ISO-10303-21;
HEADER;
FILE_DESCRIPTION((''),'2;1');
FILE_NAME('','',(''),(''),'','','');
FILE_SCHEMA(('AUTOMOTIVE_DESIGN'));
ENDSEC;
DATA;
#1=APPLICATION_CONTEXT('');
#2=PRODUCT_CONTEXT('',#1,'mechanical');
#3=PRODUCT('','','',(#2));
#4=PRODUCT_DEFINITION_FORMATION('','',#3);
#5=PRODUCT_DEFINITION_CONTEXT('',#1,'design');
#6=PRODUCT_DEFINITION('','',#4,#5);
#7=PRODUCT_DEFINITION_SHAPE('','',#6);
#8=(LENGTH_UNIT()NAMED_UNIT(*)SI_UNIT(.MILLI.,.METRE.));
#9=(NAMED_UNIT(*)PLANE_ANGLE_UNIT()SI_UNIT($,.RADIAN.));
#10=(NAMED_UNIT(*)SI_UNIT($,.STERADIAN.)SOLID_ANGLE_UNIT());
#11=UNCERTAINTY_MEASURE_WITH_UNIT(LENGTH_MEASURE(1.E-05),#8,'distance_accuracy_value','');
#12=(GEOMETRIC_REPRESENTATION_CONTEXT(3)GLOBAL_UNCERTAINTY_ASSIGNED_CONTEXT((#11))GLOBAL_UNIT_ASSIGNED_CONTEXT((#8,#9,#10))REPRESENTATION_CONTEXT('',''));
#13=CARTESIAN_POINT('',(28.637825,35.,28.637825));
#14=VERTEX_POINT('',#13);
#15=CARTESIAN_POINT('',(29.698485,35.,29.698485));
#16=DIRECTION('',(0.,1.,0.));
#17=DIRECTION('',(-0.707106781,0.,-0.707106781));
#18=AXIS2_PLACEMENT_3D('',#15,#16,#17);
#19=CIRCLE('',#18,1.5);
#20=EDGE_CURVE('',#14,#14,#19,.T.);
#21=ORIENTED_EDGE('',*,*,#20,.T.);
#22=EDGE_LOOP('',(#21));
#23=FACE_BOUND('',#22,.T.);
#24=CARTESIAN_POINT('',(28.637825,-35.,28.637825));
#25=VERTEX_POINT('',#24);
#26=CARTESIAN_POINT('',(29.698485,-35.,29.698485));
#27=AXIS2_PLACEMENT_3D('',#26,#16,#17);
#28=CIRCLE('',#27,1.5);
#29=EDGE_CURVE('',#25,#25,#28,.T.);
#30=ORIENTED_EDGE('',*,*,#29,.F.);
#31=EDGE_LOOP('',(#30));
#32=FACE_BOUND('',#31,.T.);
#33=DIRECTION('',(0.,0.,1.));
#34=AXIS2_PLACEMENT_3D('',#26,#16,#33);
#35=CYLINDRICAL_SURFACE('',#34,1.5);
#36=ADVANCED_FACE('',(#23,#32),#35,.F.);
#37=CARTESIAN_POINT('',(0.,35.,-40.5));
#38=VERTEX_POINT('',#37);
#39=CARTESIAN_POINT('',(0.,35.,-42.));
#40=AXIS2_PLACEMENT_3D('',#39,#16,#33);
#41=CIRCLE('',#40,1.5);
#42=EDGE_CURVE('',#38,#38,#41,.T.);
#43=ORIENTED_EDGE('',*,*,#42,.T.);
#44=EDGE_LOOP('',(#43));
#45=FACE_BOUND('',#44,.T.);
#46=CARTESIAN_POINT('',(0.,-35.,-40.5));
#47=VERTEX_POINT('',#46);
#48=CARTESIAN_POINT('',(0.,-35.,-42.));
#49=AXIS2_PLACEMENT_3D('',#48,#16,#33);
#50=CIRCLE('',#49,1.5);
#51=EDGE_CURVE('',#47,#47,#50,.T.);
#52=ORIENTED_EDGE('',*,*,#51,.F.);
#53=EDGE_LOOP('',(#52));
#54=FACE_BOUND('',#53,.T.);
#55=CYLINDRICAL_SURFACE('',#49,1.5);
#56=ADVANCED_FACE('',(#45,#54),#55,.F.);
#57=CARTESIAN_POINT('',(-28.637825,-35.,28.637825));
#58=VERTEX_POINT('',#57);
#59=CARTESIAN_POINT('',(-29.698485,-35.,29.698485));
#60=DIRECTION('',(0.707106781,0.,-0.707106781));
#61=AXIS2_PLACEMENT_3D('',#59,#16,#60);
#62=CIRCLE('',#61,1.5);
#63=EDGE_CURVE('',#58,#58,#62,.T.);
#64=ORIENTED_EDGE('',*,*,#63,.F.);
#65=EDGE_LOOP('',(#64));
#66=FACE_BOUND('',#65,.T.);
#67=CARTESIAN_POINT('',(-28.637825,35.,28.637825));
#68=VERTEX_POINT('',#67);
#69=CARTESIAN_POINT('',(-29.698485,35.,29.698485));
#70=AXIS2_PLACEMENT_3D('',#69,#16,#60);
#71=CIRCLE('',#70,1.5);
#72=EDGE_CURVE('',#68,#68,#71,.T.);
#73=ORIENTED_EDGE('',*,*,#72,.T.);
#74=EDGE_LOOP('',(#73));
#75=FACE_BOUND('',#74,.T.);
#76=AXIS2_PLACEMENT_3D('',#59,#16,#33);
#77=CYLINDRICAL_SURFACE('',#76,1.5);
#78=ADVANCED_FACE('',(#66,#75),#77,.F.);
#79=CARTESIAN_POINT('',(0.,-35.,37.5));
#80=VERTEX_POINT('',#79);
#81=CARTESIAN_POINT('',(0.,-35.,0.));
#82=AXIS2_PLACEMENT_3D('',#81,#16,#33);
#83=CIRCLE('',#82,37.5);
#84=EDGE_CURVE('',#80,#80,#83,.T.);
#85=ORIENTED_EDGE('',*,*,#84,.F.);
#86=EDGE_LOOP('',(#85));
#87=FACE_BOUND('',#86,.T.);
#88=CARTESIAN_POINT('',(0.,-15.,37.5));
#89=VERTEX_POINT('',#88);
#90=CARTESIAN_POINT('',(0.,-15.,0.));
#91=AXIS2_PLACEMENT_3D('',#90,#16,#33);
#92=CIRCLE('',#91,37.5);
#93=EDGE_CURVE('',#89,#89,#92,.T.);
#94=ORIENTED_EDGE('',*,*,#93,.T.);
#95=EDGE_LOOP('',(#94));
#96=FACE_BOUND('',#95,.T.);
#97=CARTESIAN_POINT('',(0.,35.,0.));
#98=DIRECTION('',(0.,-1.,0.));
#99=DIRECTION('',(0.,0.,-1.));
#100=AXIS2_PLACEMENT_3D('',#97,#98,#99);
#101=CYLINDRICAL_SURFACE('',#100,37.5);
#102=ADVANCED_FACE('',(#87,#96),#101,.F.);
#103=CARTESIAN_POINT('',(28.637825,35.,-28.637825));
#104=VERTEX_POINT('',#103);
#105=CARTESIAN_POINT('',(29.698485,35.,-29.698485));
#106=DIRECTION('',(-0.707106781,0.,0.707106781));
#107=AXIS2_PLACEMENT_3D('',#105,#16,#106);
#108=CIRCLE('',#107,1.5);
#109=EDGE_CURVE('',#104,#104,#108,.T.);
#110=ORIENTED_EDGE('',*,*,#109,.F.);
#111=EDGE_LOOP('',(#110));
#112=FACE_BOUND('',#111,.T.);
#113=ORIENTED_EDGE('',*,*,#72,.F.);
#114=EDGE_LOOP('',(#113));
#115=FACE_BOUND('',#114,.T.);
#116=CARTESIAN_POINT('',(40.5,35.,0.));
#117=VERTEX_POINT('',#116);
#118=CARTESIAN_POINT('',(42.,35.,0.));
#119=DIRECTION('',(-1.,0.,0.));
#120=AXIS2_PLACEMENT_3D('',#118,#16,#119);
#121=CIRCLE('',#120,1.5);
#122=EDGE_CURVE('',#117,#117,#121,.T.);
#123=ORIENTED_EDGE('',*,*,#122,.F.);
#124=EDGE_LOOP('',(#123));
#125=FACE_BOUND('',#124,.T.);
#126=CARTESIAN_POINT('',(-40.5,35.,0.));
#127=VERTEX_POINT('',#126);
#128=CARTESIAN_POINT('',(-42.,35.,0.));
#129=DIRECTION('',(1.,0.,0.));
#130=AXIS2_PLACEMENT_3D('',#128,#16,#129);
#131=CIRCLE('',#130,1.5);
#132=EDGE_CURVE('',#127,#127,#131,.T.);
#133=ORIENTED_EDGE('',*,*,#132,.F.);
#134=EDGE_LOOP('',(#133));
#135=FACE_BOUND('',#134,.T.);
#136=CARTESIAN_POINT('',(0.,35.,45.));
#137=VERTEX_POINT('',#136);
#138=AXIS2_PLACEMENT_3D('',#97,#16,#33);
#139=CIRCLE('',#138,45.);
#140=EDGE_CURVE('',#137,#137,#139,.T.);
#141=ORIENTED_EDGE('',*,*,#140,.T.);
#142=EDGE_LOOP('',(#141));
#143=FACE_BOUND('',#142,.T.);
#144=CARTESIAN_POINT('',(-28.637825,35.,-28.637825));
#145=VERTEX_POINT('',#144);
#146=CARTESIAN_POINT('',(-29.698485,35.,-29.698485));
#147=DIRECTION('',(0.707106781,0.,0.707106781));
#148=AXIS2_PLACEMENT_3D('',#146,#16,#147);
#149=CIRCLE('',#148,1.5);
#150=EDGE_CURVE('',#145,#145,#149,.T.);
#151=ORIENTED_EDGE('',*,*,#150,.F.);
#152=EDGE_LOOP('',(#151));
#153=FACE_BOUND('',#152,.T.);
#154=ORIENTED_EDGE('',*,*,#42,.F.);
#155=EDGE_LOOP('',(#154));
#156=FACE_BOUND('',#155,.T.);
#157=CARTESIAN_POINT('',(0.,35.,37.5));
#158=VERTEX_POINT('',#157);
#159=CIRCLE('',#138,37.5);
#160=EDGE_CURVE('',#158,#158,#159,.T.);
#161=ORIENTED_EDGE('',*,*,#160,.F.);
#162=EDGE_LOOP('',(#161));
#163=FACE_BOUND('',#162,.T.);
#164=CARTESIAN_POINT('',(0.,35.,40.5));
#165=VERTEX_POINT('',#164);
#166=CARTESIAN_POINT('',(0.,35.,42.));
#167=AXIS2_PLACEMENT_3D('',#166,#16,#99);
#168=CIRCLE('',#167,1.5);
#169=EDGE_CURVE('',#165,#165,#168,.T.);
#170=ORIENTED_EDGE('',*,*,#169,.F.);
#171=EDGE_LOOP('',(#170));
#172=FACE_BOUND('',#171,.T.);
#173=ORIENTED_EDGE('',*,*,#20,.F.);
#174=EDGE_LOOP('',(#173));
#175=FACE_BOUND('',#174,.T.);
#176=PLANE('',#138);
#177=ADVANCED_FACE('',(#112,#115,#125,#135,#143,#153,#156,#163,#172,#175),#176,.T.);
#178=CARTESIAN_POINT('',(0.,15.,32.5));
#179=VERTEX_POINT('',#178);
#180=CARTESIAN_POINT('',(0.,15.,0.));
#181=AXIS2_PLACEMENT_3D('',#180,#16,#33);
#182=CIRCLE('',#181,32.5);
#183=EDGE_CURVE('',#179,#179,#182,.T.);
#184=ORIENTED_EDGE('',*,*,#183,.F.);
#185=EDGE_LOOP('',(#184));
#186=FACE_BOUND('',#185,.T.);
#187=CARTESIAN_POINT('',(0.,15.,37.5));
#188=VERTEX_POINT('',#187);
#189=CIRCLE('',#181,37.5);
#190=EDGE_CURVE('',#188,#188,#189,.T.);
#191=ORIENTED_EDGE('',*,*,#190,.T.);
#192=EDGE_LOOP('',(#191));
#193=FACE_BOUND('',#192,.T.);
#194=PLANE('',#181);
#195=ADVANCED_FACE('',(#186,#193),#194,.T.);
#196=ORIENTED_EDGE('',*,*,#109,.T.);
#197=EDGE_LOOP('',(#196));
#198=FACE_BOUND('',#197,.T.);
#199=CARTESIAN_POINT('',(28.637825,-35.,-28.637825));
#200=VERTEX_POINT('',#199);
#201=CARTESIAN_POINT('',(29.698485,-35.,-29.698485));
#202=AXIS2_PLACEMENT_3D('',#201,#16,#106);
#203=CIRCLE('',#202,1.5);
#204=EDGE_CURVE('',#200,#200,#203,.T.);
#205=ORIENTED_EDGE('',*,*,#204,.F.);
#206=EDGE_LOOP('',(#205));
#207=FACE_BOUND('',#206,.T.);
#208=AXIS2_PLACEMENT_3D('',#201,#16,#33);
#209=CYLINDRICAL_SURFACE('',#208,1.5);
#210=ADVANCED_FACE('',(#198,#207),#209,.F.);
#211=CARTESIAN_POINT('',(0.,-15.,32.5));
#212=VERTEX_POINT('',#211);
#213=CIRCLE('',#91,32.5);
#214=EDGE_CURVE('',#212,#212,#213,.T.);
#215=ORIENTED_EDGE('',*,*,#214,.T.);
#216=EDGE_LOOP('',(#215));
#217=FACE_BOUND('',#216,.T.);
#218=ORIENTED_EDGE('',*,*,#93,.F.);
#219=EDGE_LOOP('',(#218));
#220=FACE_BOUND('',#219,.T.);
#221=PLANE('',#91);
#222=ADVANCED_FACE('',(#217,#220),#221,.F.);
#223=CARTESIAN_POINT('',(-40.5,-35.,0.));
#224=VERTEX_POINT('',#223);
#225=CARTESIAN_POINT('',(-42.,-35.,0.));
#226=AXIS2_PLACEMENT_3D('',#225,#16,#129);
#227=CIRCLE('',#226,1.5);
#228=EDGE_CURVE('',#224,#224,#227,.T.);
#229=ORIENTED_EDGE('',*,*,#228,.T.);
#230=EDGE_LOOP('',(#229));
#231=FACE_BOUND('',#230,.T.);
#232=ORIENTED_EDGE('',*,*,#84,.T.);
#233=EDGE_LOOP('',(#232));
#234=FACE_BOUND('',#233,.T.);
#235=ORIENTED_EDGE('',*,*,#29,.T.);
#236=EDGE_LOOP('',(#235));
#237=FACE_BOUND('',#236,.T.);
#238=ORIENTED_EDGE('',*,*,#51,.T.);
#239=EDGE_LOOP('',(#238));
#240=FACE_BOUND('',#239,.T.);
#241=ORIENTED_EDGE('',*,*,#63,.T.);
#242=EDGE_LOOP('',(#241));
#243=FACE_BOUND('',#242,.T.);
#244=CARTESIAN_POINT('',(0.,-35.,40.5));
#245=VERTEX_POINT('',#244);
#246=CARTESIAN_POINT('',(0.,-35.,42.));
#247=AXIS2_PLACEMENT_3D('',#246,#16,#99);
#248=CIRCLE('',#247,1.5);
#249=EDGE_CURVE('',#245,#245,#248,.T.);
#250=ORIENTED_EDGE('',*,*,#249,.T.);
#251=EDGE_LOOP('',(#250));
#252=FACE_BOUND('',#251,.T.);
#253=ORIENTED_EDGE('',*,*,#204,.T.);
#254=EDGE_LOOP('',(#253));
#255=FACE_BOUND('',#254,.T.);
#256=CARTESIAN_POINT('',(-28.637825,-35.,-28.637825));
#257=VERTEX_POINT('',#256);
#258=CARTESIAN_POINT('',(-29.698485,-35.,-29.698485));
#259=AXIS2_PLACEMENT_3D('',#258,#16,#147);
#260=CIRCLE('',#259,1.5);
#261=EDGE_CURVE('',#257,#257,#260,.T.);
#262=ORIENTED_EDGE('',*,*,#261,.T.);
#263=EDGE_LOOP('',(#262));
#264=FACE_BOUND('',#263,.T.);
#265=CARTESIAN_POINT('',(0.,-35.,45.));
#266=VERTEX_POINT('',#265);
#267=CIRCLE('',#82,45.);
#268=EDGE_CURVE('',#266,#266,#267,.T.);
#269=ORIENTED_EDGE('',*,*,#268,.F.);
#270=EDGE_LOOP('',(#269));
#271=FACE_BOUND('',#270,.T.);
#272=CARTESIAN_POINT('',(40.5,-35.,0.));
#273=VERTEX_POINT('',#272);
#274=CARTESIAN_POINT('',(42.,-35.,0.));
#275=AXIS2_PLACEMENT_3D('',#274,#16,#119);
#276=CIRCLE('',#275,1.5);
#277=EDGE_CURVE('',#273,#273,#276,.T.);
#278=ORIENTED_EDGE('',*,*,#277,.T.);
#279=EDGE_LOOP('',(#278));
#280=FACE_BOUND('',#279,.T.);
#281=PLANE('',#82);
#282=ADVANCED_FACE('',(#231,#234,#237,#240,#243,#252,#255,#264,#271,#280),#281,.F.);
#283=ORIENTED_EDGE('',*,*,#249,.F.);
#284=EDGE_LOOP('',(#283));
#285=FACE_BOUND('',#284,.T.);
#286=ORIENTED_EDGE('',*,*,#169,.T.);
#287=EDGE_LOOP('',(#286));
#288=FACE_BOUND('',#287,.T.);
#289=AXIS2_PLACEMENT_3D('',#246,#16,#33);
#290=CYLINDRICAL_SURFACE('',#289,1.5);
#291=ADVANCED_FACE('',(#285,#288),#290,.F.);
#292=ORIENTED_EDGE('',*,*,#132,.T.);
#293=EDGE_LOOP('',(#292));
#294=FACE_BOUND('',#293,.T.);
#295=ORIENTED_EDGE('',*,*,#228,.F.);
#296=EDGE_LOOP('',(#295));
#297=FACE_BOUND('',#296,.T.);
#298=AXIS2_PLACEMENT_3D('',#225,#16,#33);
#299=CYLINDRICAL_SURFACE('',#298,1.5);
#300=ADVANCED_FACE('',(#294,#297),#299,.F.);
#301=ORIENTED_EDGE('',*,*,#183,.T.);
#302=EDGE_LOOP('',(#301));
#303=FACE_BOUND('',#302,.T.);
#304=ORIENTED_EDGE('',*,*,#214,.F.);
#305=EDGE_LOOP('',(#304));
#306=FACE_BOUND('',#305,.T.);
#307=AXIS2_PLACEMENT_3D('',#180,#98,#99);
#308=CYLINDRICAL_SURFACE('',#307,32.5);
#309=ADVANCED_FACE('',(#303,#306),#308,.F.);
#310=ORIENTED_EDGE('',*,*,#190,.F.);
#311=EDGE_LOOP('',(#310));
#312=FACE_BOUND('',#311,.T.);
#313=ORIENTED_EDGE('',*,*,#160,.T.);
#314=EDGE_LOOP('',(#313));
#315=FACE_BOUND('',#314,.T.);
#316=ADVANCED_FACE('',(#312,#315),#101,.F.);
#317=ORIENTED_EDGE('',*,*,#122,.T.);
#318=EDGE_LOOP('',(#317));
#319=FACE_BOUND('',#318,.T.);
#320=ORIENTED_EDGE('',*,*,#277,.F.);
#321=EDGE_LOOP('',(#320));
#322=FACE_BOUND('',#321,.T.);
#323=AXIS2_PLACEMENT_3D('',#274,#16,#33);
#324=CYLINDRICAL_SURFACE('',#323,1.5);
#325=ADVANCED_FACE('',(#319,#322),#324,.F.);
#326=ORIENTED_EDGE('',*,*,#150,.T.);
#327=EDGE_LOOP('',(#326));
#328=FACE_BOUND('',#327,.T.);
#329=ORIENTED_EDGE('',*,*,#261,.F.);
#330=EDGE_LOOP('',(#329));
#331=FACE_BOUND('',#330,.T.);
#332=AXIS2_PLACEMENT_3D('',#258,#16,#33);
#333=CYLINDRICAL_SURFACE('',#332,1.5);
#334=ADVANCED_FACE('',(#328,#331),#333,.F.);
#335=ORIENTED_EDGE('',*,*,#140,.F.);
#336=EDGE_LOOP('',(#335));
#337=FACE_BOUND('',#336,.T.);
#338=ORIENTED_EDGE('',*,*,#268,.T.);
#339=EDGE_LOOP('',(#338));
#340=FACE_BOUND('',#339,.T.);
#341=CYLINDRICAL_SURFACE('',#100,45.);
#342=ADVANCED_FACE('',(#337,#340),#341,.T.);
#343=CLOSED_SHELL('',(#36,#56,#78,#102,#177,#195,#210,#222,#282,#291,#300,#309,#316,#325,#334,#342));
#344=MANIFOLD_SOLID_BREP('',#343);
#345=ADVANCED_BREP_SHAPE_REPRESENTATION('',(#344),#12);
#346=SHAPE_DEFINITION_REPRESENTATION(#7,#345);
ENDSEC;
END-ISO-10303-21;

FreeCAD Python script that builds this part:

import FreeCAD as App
import Part
import Sketcher

V = App.Vector
Q = App.Units.Quantity

doc = App.newDocument("Part")
params = doc.addObject("Spreadsheet::Sheet", "Params")
for row, (alias, value) in enumerate([
    ("sketch1_diameter", "90 mm"),
    ("sketch1_diameter2", "75 mm"),
    ("pad1_length", "70 mm"),
    ("sketch2_diameter", "85 mm"),
    ("sketch2_diameter2", "65 mm"),
    ("pad2_length", "30 mm"),
    ("sketch3_diameter", "3 mm"),
], start=1):
    params.set(f"A{row}", alias)
    params.set(f"B{row}", "=" + value)
    params.setAlias(f"B{row}", alias)

body = doc.addObject("PartDesign::Body", "Body")

# Sketch on XZ plane
sketch1 = body.newObject("Sketcher::SketchObject", "Sketch")
sketch1.AttachmentSupport = (doc.getObject("XZ_Plane"), [""])
sketch1.MapMode = "FlatFace"
sketch1.addGeometry(Part.Circle(V(0, 0, 0), V(0, 0, 1), 45), False)
sketch1.addGeometry(Part.Circle(V(0, 0, 0), V(0, 0, 1), 37.5), False)
sketch1.addConstraint(Sketcher.Constraint("Coincident", 0, 3, -1, 1))
sketch1.addConstraint(Sketcher.Constraint("Coincident", 1, 3, -1, 1))
sketch1.addConstraint(Sketcher.Constraint("Diameter", 0, Q("90 mm")))
sketch1.addConstraint(Sketcher.Constraint("Diameter", 1, Q("75 mm")))
sketch1.setExpression("Constraints[2]", "Params.sketch1_diameter")
sketch1.setExpression("Constraints[3]", "Params.sketch1_diameter2")
pad1 = body.newObject("PartDesign::Pad", "Pad")
pad1.Profile = sketch1
pad1.setExpression("Length", "Params.pad1_length")
pad1.Midplane = True

# Sketch on XZ plane
sketch2 = body.newObject("Sketcher::SketchObject", "Sketch001")
sketch2.AttachmentSupport = (doc.getObject("XZ_Plane"), [""])
sketch2.MapMode = "FlatFace"
sketch2.addGeometry(Part.Circle(V(0, 0, 0), V(0, 0, 1), 42.5), False)
sketch2.addGeometry(Part.Circle(V(0, 0, 0), V(0, 0, 1), 32.5), False)
sketch2.addConstraint(Sketcher.Constraint("Coincident", 0, 3, -1, 1))
sketch2.addConstraint(Sketcher.Constraint("Coincident", 1, 3, -1, 1))
sketch2.addConstraint(Sketcher.Constraint("Diameter", 0, Q("85 mm")))
sketch2.addConstraint(Sketcher.Constraint("Diameter", 1, Q("65 mm")))
sketch2.setExpression("Constraints[2]", "Params.sketch2_diameter")
sketch2.setExpression("Constraints[3]", "Params.sketch2_diameter2")
pad2 = body.newObject("PartDesign::Pad", "Pad001")
pad2.Profile = sketch2
pad2.setExpression("Length", "Params.pad2_length")
pad2.Midplane = True

# Sketch on XZ plane
sketch3 = body.newObject("Sketcher::SketchObject", "Sketch002")
sketch3.AttachmentSupport = (doc.getObject("XZ_Plane"), [""])
sketch3.MapMode = "FlatFace"
sketch3.AttachmentOffset = App.Placement(V(0, 0, -35), App.Rotation())
sketch3.addGeometry(Part.Circle(V(0, -42, 0), V(0, 0, 1), 1.5), False)
sketch3.addConstraint(Sketcher.Constraint("PointOnObject", 0, 3, -2))
sketch3.addConstraint(Sketcher.Constraint("Diameter", 0, Q("3 mm")))
sketch3.addConstraint(Sketcher.Constraint("DistanceY", 0, 3, -1, 1, Q("42 mm")))
sketch3.setExpression("Constraints[1]", "Params.sketch3_diameter")
pocket1 = body.newObject("PartDesign::Pocket", "Pocket")
pocket1.Profile = sketch3
pocket1.Type = "ThroughAll"
pocket1.Reversed = True
doc.recompute()

polarpattern = body.newObject("PartDesign::PolarPattern", "PolarPattern")
polarpattern.Originals = [pocket1]
polarpattern.Axis = (doc.getObject("Y_Axis"), [""])
polarpattern.Angle = 360
polarpattern.Occurrences = 8
body.Tip = polarpattern

doc.recompute()
